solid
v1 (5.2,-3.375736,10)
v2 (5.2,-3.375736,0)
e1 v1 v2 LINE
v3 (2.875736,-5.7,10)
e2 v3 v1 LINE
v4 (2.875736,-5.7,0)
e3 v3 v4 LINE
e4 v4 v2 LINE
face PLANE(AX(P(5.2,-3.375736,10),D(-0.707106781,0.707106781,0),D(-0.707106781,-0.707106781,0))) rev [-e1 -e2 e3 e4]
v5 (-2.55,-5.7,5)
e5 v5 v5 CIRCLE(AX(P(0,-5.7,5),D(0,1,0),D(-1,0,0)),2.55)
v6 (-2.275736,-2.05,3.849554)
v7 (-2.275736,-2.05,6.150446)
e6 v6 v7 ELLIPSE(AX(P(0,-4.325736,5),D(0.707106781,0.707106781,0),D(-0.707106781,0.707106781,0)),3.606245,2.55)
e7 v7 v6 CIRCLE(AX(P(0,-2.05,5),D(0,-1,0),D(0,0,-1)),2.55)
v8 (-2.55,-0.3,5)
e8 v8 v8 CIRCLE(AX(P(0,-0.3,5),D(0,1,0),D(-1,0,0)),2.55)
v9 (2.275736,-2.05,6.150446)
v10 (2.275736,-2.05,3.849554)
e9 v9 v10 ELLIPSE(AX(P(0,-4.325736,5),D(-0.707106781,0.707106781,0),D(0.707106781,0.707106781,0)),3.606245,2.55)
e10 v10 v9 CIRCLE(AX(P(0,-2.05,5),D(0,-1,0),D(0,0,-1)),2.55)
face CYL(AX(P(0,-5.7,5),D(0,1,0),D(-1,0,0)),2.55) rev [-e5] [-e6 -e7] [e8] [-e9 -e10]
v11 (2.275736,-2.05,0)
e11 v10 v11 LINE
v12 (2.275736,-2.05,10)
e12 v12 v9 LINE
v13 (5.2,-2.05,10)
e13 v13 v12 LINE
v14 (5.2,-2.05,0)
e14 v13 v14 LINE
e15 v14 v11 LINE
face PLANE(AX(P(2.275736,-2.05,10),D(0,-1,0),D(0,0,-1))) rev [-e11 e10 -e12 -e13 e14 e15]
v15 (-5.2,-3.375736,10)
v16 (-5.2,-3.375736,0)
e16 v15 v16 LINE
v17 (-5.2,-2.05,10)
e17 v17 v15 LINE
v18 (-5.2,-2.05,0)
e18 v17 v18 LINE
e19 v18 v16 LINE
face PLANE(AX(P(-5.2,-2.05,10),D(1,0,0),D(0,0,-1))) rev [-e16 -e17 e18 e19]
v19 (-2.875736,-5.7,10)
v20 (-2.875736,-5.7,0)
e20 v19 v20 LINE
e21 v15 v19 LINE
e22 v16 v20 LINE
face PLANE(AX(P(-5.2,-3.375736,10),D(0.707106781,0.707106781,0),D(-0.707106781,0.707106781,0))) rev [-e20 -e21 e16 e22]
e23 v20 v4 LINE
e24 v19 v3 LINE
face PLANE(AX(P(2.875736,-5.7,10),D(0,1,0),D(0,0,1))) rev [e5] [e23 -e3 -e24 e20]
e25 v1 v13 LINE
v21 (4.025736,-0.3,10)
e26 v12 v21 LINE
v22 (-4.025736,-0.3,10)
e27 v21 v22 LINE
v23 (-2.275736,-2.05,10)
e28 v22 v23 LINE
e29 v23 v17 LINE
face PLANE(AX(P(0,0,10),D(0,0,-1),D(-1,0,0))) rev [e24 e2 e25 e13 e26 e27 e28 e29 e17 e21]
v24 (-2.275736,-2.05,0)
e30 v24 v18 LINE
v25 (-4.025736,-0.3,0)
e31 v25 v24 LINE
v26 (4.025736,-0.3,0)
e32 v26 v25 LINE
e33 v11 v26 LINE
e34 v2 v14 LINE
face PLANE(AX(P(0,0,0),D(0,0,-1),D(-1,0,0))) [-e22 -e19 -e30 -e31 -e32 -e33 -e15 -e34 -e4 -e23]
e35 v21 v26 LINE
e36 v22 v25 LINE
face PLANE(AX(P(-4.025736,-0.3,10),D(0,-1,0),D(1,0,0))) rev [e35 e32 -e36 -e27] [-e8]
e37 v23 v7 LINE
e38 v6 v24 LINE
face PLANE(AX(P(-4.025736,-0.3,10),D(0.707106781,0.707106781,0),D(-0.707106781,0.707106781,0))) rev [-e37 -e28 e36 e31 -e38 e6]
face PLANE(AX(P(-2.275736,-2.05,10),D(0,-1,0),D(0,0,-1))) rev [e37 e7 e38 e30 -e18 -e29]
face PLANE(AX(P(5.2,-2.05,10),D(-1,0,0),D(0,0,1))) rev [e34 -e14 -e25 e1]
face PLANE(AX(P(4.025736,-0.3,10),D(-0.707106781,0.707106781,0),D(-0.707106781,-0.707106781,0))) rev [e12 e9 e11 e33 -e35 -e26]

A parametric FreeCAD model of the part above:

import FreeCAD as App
import Part
import Sketcher

V = App.Vector
Q = App.Units.Quantity


def add_polygon(sketch, points):
    """Adds a closed chain of lines whose ends are joined by coincident constraints."""
    first, n = sketch.GeometryCount, len(points)
    for a, b in zip(points, points[1:] + points[:1]):
        sketch.addGeometry(Part.LineSegment(App.Vector(*a, 0), App.Vector(*b, 0)), False)
    for i in range(n):
        sketch.addConstraint(Sketcher.Constraint("Coincident", first + i, 2, first + (i + 1) % n, 1))

doc = App.newDocument("Part")
body = doc.addObject("PartDesign::Body", "Body")

# Sketch on XY plane
sketch1 = doc.addObject("Sketcher::SketchObject", "Sketch")
body.addObject(sketch1)
sketch1.AttachmentSupport = (doc.XY_Plane, [""])
sketch1.MapMode = "FlatFace"
add_polygon(sketch1, [(4, -0.3), (-4, -0.3), (-2.3, -2), (-5.2, -2), (-5.2, -3.4), (-2.9, -5.7), (2.9, -5.7), (5.2, -3.4), (5.2, -2), (2.3, -2)])  # lines 0-9
sketch1.addConstraint([
    Sketcher.Constraint("Horizontal", 0),
    Sketcher.Constraint("Horizontal", 2),
    Sketcher.Constraint("Vertical", 3),
    Sketcher.Constraint("Horizontal", 5),
    Sketcher.Constraint("Vertical", 7),
    Sketcher.Constraint("Horizontal", 8),
    Sketcher.Constraint("Symmetric", 3, 2, 6, 2, -2),
    Sketcher.Constraint("Symmetric", 1, 2, 8, 2, -2),
    Sketcher.Constraint("Parallel", 1, 4),
    Sketcher.Constraint("Perpendicular", 4, 6),
    Sketcher.Constraint("Parallel", 6, 9),
    Sketcher.Constraint("Equal", 4, 6),
    Sketcher.Constraint("DistanceY", 0, 2, -1, 1, Q("0.3 mm")),
    Sketcher.Constraint("DistanceX", 2, 2, -1, 1, Q("5.2 mm")),
    Sketcher.Constraint("DistanceY", 4, 2, -1, 1, Q("5.7 mm")),
    Sketcher.Constraint("DistanceX", 4, 2, 1, 2, Q("0.6 mm")),
    Sketcher.Constraint("DistanceY", 1, 2, -1, 1, Q("2.05 mm")),
    Sketcher.Constraint("DistanceX", 0, 2, 0, 1, Q("8.051472 mm")),
])
pad1 = doc.addObject("PartDesign::Pad", "Pad")
body.addObject(pad1)
pad1.Profile = sketch1
pad1.Length = 10

# Sketch on XZ plane
sketch2 = doc.addObject("Sketcher::SketchObject", "Sketch001")
body.addObject(sketch2)
sketch2.AttachmentSupport = (doc.XZ_Plane, [""])
sketch2.MapMode = "FlatFace"
sketch2.AttachmentOffset = App.Placement(V(0, 0, 0.3), App.Rotation())
sketch2.addGeometry(Part.Circle(V(0, 5, 0), V(0, 0, 1), 2.5), False)
sketch2.addConstraint([
    Sketcher.Constraint("PointOnObject", 0, 3, -2),
    Sketcher.Constraint("Diameter", 0, Q("5.1 mm")),
    Sketcher.Constraint("DistanceY", -1, 1, 0, 3, Q("5 mm")),
])
pocket1 = doc.addObject("PartDesign::Pocket", "Pocket")
body.addObject(pocket1)
pocket1.Profile = sketch2
pocket1.Type = "ThroughAll"
pocket1.Reversed = True

doc.recompute()
